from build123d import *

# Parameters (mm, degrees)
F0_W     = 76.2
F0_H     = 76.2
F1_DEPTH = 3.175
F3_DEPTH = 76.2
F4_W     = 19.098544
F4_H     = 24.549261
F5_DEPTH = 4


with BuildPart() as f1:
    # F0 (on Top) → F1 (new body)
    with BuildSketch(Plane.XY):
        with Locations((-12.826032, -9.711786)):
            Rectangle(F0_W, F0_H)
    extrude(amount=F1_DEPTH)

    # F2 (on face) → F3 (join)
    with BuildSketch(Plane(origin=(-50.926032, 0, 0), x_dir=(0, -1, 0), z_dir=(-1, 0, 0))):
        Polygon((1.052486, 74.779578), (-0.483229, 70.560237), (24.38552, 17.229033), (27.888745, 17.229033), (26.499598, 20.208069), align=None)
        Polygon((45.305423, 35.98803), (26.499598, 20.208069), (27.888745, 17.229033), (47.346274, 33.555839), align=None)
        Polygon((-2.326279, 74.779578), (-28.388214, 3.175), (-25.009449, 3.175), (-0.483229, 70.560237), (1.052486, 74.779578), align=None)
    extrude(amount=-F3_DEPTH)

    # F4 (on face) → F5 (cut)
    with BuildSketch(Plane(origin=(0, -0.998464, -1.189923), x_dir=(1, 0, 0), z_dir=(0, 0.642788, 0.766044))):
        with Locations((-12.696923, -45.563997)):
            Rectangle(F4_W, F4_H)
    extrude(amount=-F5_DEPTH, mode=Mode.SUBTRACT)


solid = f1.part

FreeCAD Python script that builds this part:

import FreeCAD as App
import Part
import Sketcher
from FreeCAD import Vector
Q = App.Units.Quantity

doc = App.newDocument("Part")
params = doc.addObject("Spreadsheet::Sheet", "Params")
for row, (alias, value) in enumerate([
    ("sketch1_width", "3 in"),
    ("pad1_length", "0.125 in"),
    ("sketch2_length", "1 in"),
    ("sketch2_length2", "3 in"),
    ("sketch2_length3", "0.125 in"),
    ("pad2_length", "3 in"),
    ("pocket1_length", "4 mm"),
], start=1):
    params.set(f"A{row}", alias)
    params.set(f"B{row}", "=" + value)
    params.setAlias(f"B{row}", alias)

body = doc.addObject("PartDesign::Body", "Body")

# Sketch on XY plane
sketch1 = body.newObject("Sketcher::SketchObject", "Sketch")
sketch1.AttachmentSupport = (doc.getObject("XY_Plane"), [""])
sketch1.MapMode = "FlatFace"
sketch1.addGeometry([
    Part.LineSegment(Vector(-50.926032, 28.388214, 0), Vector(-50.926032, -47.811786, 0)),
    Part.LineSegment(Vector(-50.926032, -47.811786, 0), Vector(25.273968, -47.811786, 0)),
    Part.LineSegment(Vector(25.273968, -47.811786, 0), Vector(25.273968, 28.388214, 0)),
    Part.LineSegment(Vector(25.273968, 28.388214, 0), Vector(-50.926032, 28.388214, 0)),
], False)
sketch1.addConstraint([
    Sketcher.Constraint("Coincident", 0, 2, 1, 1),
    Sketcher.Constraint("Coincident", 1, 2, 2, 1),
    Sketcher.Constraint("Coincident", 2, 2, 3, 1),
    Sketcher.Constraint("Coincident", 3, 2, 0, 1),
    Sketcher.Constraint("Vertical", 0),
    Sketcher.Constraint("Horizontal", 1),
    Sketcher.Constraint("Vertical", 2),
    Sketcher.Constraint("Horizontal", 3),
    Sketcher.Constraint("Equal", 3, 0),
    Sketcher.Constraint("DistanceX", 1, 1, 1, 2, Q("3 in")),
    Sketcher.Constraint("DistanceX", -1, 1, 1, 2, 25.273968),
    Sketcher.Constraint("DistanceY", 0, 2, -1, 1, 47.811786),
])
sketch1.setExpression("Constraints[9]", "Params.sketch1_width")
pad1 = body.newObject("PartDesign::Pad", "Pad")
pad1.Profile = sketch1
pad1.setExpression("Length", "Params.pad1_length")

# Sketch on YZ plane
sketch2 = body.newObject("Sketcher::SketchObject", "Sketch001")
sketch2.AttachmentSupport = (doc.getObject("YZ_Plane"), [""])
sketch2.MapMode = "FlatFace"
sketch2.AttachmentOffset = App.Placement(Vector(0, 0, -50.926032), App.Rotation())
sketch2.addGeometry([
    Part.LineSegment(Vector(0.483229, 70.560237, 0), Vector(-24.38552, 17.229033, 0)),  # 0
    Part.LineSegment(Vector(-24.38552, 17.229033, 0), Vector(-27.888745, 17.229033, 0)),  # 1
    Part.LineSegment(Vector(-27.888745, 17.229033, 0), Vector(-47.346274, 33.555839, 0)),  # 2
    Part.LineSegment(Vector(-47.346274, 33.555839, 0), Vector(-45.305423, 35.98803, 0)),  # 3
    Part.LineSegment(Vector(-45.305423, 35.98803, 0), Vector(-26.499598, 20.208069, 0)),  # 4
    Part.LineSegment(Vector(-26.499598, 20.208069, 0), Vector(-1.052486, 74.779578, 0)),  # 5
    Part.LineSegment(Vector(-1.052486, 74.779578, 0), Vector(2.326279, 74.779578, 0)),  # 6
    Part.LineSegment(Vector(2.326279, 74.779578, 0), Vector(28.388214, 3.175, 0)),  # 7
    Part.LineSegment(Vector(28.388214, 3.175, 0), Vector(25.009449, 3.175, 0)),  # 8
    Part.LineSegment(Vector(25.009449, 3.175, 0), Vector(0.483229, 70.560237, 0)),  # 9
], False)
sketch2.addConstraint([
    Sketcher.Constraint("Coincident", 0, 2, 1, 1),
    Sketcher.Constraint("Coincident", 1, 2, 2, 1),
    Sketcher.Constraint("Coincident", 2, 2, 3, 1),
    Sketcher.Constraint("Coincident", 3, 2, 4, 1),
    Sketcher.Constraint("Coincident", 4, 2, 5, 1),
    Sketcher.Constraint("Coincident", 5, 2, 6, 1),
    Sketcher.Constraint("Coincident", 6, 2, 7, 1),
    Sketcher.Constraint("Coincident", 7, 2, 8, 1),
    Sketcher.Constraint("Coincident", 8, 2, 9, 1),
    Sketcher.Constraint("Coincident", 9, 2, 0, 1),
    Sketcher.Constraint("Horizontal", 1),
    Sketcher.Constraint("Horizontal", 6),
    Sketcher.Constraint("Horizontal", 8),
    Sketcher.Constraint("Perpendicular", 2, 3),
    Sketcher.Constraint("Perpendicular", 3, 4),
    Sketcher.Constraint("Parallel", 0, 5),
    Sketcher.Constraint("Parallel", 7, 9),
    Sketcher.Constraint("Equal", 6, 8),
    Sketcher.Constraint("Distance", 2, Q("1 in")),
    Sketcher.Constraint("Distance", 7, Q("3 in")),
    Sketcher.Constraint("Angle", 0, Q("-115 deg")),
    Sketcher.Constraint("Angle", 2, Q("139.999999 deg")),
    Sketcher.Constraint("Angle", 7, Q("-70 deg")),
    Sketcher.Constraint("Distance", 3, Q("0.125 in")),
    Sketcher.Constraint("DistanceY", -1, 1, 7, 2, Q("0.125 in")),
    Sketcher.Constraint("DistanceX", 3, 2, 6, 2, 47.631702),
    Sketcher.Constraint("DistanceX", 0, 2, 6, 2, 26.711799),
    Sketcher.Constraint("DistanceX", 5, 2, 7, 2, 29.4407),
    Sketcher.Constraint("Distance", 4, 24.549261),
    Sketcher.Constraint("DistanceX", 0, 2, -1, 1, 24.38552),
])
sketch2.setExpression("Constraints[18]", "Params.sketch2_length")
sketch2.setExpression("Constraints[19]", "Params.sketch2_length2")
sketch2.setExpression("Constraints[23]", "Params.sketch2_length3")
pad2 = body.newObject("PartDesign::Pad", "Pad001")
pad2.Profile = sketch2
pad2.setExpression("Length", "Params.pad2_length")

# Sketch on an angled plane
sketch3 = body.newObject("Sketcher::SketchObject", "Sketch002")
sketch3.Placement = App.Placement(Vector(0, -0.998464, -1.189923), App.Rotation(Vector(1, 0, 0), Vector(0, 0.766044068, -0.642788057), Vector(0, 0.642788057, 0.766044068), "ZXY"))
sketch3.addGeometry([
    Part.LineSegment(Vector(-22.246195, -33.289367, 0), Vector(-22.246195, -57.838628, 0)),
    Part.LineSegment(Vector(-22.246195, -57.838628, 0), Vector(-3.147651, -57.838628, 0)),
    Part.LineSegment(Vector(-3.147651, -57.838628, 0), Vector(-3.147651, -33.289367, 0)),
    Part.LineSegment(Vector(-3.147651, -33.289367, 0), Vector(-22.246195, -33.289367, 0)),
], False)
sketch3.addConstraint([
    Sketcher.Constraint("Coincident", 0, 2, 1, 1),
    Sketcher.Constraint("Coincident", 1, 2, 2, 1),
    Sketcher.Constraint("Coincident", 2, 2, 3, 1),
    Sketcher.Constraint("Coincident", 3, 2, 0, 1),
    Sketcher.Constraint("Vertical", 0),
    Sketcher.Constraint("Horizontal", 1),
    Sketcher.Constraint("Vertical", 2),
    Sketcher.Constraint("Horizontal", 3),
    Sketcher.Constraint("DistanceY", 0, 2, 0, 1, 24.549261),
    Sketcher.Constraint("DistanceX", 1, 1, 1, 2, 19.098544),
    Sketcher.Constraint("DistanceX", 1, 2, -1, 1, 3.147651),
    Sketcher.Constraint("DistanceY", 0, 2, -1, 1, 57.838628),
])
pocket1 = body.newObject("PartDesign::Pocket", "Pocket")
pocket1.Profile = sketch3
pocket1.setExpression("Length", "Params.pocket1_length")

doc.recompute()
